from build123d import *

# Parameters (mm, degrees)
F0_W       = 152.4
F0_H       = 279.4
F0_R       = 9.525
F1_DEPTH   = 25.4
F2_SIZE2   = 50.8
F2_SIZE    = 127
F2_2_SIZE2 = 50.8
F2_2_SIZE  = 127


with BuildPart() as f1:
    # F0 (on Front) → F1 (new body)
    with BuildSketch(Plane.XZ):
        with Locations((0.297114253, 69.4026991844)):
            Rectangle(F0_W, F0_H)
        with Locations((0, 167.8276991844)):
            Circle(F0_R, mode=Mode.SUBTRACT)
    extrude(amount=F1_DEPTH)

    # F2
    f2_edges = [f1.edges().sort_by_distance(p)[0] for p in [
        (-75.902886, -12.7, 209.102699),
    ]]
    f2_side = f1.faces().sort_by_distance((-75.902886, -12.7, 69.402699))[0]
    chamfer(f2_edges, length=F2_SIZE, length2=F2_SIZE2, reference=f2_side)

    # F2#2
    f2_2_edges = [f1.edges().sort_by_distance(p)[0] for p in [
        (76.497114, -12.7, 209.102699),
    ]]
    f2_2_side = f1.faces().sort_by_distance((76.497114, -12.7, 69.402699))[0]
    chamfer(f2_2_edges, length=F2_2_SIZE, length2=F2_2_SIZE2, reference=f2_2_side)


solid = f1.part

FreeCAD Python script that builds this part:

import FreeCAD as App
import Part
import Sketcher

V = App.Vector
Q = App.Units.Quantity


def edges_at(feature, points):
    """Names of the edges that pass closest to the given points."""
    edges = feature.Shape.Edges
    near = lambda p: min(range(len(edges)), key=lambda i: edges[i].distToShape(Part.Vertex(*p))[0])
    return sorted({f"Edge{near(p) + 1}" for p in points})

doc = App.newDocument("Part")
body = doc.addObject("PartDesign::Body", "Body")

sketch1 = body.newObject("Sketcher::SketchObject", "Sketch")
sketch1.AttachmentSupport = (doc.getObject("XZ_Plane"), [""])
sketch1.MapMode = "FlatFace"
sketch1.addGeometry([
    Part.LineSegment(V(-76, 209, 0), V(-76, -70, 0)),
    Part.LineSegment(V(-76, -70, 0), V(76, -70, 0)),
    Part.LineSegment(V(76, -70, 0), V(76, 209, 0)),
    Part.LineSegment(V(76, 209, 0), V(-76, 209, 0)),
    Part.Circle(V(0, 168, 0), V(0, 0, 1), 10),
], False)
sketch1.addConstraint([
    Sketcher.Constraint("Coincident", 0, 2, 1, 1),
    Sketcher.Constraint("Coincident", 1, 2, 2, 1),
    Sketcher.Constraint("Coincident", 2, 2, 3, 1),
    Sketcher.Constraint("Coincident", 3, 2, 0, 1),
    Sketcher.Constraint("Vertical", 0),
    Sketcher.Constraint("Horizontal", 1),
    Sketcher.Constraint("Vertical", 2),
    Sketcher.Constraint("Horizontal", 3),
    Sketcher.Constraint("PointOnObject", 4, 3, -2),
    Sketcher.Constraint("Diameter", 4, Q("0.75 in")),
    Sketcher.Constraint("DistanceX", 1, 1, 1, 2, Q("6 in")),
    Sketcher.Constraint("DistanceY", 0, 2, 0, 1, Q("11 in")),
    Sketcher.Constraint("DistanceY", 0, 2, 4, 3, Q("9.375 in")),
    Sketcher.Constraint("DistanceY", -1, 1, 4, 3, 167.827699),
    Sketcher.Constraint("DistanceX", 0, 2, -1, 1, 75.902886),
])
pad1 = body.newObject("PartDesign::Pad", "Pad")
pad1.Profile = sketch1
pad1.Length = Q("1 in")
doc.recompute()

chamfer = body.newObject("PartDesign::Chamfer", "Chamfer")
chamfer.Base = (pad1, edges_at(pad1, [(-75.903, -12.7, 209.103)]))
chamfer.ChamferType = "Two distances"
chamfer.Size = Q("5 in")
chamfer.Size2 = Q("2 in")
doc.recompute()

chamfer2 = body.newObject("PartDesign::Chamfer", "Chamfer001")
chamfer2.Base = (chamfer, edges_at(chamfer, [(76.497, -12.7, 209.103)]))
chamfer2.ChamferType = "Two distances"
chamfer2.Size = Q("5 in")
chamfer2.Size2 = Q("2 in")
chamfer2.FlipDirection = True

doc.recompute()
